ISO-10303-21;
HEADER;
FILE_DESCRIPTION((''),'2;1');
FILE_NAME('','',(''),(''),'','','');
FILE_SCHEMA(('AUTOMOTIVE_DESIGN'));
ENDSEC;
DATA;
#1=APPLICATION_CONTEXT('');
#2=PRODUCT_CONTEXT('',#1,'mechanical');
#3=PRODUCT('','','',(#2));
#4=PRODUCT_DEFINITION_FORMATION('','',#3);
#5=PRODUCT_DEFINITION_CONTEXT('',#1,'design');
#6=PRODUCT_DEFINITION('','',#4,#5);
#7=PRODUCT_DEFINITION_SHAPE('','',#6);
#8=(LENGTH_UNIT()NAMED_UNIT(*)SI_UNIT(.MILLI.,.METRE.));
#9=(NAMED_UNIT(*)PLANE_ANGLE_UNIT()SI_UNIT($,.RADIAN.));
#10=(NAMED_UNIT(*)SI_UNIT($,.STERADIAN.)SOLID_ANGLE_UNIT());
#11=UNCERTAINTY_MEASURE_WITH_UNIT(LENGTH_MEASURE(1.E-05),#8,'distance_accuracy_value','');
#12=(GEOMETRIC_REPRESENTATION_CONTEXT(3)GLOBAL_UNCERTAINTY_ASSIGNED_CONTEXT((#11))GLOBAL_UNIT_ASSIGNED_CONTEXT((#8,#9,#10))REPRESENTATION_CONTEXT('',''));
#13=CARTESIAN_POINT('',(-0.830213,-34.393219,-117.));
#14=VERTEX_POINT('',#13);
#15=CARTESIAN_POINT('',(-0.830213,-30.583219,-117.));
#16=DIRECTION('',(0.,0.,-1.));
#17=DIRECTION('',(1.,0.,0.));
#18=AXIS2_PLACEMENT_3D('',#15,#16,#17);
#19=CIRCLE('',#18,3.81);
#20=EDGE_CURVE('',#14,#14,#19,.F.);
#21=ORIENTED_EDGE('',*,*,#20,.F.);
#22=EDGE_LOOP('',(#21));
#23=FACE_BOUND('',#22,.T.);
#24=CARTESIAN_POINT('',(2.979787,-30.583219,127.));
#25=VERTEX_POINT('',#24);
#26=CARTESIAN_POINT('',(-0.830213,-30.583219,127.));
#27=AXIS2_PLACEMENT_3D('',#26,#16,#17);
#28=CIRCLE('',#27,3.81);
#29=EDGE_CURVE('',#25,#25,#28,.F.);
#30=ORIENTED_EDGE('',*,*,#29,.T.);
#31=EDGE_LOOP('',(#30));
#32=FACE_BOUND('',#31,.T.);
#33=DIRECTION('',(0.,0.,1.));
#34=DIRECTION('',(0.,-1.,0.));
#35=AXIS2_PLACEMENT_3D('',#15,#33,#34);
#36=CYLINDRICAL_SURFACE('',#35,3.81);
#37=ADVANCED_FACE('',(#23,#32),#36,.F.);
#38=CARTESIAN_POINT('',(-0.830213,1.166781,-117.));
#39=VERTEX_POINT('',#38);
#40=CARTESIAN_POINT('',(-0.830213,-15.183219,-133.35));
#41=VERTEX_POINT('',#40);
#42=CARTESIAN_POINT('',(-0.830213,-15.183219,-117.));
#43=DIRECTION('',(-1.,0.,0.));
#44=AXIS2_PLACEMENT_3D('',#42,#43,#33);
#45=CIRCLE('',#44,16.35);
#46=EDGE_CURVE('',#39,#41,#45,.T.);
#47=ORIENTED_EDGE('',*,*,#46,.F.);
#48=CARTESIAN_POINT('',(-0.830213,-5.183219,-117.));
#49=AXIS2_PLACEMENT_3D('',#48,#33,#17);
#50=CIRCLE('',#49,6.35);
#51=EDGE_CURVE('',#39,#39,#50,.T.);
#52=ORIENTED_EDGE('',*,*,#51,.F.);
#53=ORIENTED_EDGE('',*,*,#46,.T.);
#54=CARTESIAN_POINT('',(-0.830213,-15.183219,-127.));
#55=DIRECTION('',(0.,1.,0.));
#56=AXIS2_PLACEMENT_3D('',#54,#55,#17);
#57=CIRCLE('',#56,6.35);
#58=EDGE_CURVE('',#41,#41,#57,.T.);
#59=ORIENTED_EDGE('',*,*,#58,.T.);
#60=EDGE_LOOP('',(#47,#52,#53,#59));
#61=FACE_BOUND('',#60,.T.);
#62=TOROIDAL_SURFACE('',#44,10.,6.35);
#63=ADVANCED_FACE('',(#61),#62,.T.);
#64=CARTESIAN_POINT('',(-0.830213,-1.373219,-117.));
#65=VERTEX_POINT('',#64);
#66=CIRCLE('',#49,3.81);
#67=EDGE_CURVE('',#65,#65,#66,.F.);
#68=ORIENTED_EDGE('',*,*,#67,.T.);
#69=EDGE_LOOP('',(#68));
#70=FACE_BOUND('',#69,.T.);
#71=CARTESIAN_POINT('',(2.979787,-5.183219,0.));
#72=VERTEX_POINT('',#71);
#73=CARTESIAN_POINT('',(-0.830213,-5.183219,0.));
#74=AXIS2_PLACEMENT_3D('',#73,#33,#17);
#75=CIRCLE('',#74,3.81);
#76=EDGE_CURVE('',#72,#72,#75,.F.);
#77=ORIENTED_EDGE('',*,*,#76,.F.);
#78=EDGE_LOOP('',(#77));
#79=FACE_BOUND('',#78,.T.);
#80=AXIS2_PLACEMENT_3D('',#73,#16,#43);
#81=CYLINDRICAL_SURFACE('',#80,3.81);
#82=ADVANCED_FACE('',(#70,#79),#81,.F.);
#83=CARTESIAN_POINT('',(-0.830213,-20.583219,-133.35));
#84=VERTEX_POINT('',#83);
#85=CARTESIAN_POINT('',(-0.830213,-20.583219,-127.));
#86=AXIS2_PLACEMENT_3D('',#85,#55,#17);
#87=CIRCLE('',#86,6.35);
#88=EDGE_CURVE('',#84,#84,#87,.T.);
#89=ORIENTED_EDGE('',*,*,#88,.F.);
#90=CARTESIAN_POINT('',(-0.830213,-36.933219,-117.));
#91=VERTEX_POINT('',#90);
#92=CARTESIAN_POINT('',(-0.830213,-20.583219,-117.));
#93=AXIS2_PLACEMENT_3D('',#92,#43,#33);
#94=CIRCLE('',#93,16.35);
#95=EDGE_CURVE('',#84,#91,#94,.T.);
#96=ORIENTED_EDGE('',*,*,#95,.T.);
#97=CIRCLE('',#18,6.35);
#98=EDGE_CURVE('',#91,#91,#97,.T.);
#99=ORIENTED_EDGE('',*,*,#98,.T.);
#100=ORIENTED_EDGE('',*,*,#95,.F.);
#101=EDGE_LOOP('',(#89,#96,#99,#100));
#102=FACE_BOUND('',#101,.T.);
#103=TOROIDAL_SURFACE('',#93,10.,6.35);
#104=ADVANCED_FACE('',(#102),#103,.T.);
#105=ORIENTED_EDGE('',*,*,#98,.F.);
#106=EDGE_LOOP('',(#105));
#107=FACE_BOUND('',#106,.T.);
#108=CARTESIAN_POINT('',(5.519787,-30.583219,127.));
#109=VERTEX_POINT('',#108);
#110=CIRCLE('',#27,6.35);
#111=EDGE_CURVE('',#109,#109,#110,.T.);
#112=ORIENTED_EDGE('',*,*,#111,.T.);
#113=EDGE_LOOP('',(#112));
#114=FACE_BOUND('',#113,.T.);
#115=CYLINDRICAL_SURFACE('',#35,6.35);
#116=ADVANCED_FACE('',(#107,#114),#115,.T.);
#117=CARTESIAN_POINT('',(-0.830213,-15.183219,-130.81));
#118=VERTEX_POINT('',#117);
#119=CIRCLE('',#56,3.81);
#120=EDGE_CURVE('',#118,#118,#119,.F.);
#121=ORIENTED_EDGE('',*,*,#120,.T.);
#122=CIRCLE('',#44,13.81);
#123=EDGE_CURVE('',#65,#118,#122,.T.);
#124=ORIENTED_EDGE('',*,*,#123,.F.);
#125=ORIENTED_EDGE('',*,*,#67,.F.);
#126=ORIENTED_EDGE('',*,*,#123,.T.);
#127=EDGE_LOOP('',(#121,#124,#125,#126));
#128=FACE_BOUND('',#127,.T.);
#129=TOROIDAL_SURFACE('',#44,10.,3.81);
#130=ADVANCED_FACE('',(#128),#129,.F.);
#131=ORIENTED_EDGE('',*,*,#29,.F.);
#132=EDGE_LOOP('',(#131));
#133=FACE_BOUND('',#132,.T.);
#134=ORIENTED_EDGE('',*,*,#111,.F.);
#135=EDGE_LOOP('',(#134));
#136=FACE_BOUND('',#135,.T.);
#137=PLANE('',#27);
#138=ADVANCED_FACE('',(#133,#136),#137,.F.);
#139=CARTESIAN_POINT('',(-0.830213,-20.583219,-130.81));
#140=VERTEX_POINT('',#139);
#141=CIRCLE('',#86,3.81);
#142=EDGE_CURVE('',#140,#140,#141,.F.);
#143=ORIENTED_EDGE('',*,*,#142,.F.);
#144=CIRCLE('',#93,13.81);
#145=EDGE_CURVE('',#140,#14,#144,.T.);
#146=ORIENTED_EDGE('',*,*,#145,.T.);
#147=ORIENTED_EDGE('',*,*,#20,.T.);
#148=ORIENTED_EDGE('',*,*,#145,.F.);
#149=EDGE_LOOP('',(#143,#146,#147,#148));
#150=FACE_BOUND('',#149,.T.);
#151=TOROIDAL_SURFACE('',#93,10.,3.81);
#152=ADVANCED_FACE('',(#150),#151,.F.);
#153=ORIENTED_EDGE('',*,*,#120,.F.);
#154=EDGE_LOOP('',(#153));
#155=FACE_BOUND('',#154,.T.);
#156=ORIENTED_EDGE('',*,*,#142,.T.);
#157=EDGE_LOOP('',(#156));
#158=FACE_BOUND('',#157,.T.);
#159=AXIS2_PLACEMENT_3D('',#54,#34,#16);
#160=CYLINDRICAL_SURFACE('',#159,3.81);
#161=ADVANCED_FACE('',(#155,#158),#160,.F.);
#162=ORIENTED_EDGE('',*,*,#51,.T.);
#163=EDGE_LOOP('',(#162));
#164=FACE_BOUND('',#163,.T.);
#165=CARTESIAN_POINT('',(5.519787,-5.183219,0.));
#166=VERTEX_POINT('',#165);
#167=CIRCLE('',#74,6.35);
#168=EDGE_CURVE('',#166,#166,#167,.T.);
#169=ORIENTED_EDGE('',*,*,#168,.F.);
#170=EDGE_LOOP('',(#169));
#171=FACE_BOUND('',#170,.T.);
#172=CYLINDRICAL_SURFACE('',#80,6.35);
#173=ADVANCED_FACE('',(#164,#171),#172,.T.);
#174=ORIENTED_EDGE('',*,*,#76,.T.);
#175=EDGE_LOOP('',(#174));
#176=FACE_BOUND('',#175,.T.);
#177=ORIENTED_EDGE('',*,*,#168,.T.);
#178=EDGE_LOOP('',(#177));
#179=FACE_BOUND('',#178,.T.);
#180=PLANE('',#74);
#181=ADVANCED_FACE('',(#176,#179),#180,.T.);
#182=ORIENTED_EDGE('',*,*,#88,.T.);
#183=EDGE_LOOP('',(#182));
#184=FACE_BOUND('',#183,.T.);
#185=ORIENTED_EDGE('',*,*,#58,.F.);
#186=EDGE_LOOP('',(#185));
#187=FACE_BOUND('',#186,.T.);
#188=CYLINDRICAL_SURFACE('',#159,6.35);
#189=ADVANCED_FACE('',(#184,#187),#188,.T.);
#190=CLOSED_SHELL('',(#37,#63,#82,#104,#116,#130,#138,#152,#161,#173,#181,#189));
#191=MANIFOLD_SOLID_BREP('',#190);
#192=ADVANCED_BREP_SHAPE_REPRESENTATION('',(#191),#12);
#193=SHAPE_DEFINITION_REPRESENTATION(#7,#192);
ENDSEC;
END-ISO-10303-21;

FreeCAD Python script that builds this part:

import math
import FreeCAD as App
import Part
import Sketcher

V = App.Vector

doc = App.newDocument("Part")
body = doc.addObject("PartDesign::Body", "Body")

sketch1 = body.newObject("Sketcher::SketchObject", "Sketch")
sketch1.AttachmentSupport = (doc.getObject("XY_Plane"), [""])
sketch1.MapMode = "FlatFace"
sketch1.addGeometry(Part.Circle(V(-0.8, -5.2, 0), V(0, 0, 1), 6.3), False)
sketch1.addGeometry(Part.Circle(V(-0.8, -5.2, 0), V(0, 0, 1), 3.8), False)
sketch1.addConstraint(Sketcher.Constraint("Coincident", 1, 3, 0, 3))
sketch1.addConstraint(Sketcher.Constraint("Diameter", 0, 12.7))
sketch1.addConstraint(Sketcher.Constraint("Diameter", 1, 7.62))
sketch1.addConstraint(Sketcher.Constraint("DistanceY", 0, 3, -1, 1, 5.183219))
sketch1.addConstraint(Sketcher.Constraint("DistanceX", 0, 3, -1, 1, 0.830213))

sketch2 = body.newObject("Sketcher::SketchObject", "Sketch001")
sketch2.AttachmentSupport = (doc.getObject("YZ_Plane"), [""])
sketch2.MapMode = "FlatFace"
sketch2.addGeometry(Part.LineSegment(V(-5, 0, 0), V(-5, -117, 0)), False)
sketch2.addGeometry(Part.ArcOfCircle(Part.Circle(V(-15, -117, 0), V(0, 0, 1), 10), math.radians(-90), math.radians(0)), False)
sketch2.addGeometry(Part.LineSegment(V(-15, -127, 0), V(-21, -127, 0)), False)
sketch2.addGeometry(Part.ArcOfCircle(Part.Circle(V(-21, -117, 0), V(0, 0, 1), 10), math.radians(180), math.radians(270)), False)
sketch2.addGeometry(Part.LineSegment(V(-31, -117, 0), V(-31, 127, 0)), False)
sketch2.addConstraint(Sketcher.Constraint("Tangent", 0, 2, 1, 2))
sketch2.addConstraint(Sketcher.Constraint("Tangent", 1, 1, 2, 1))
sketch2.addConstraint(Sketcher.Constraint("Tangent", 2, 2, 3, 2))
sketch2.addConstraint(Sketcher.Constraint("Tangent", 3, 1, 4, 1))
sketch2.addConstraint(Sketcher.Constraint("Vertical", 0))
sketch2.addConstraint(Sketcher.Constraint("Horizontal", 2))
sketch2.addConstraint(Sketcher.Constraint("Vertical", 4))
sketch2.addConstraint(Sketcher.Constraint("Equal", 1, 3))
sketch2.addConstraint(Sketcher.Constraint("PointOnObject", 0, 1, -1))
sketch2.addConstraint(Sketcher.Constraint("Radius", 1, 10.0))
sketch2.addConstraint(Sketcher.Constraint("DistanceY", 0, 2, 0, 1, 117.0))
sketch2.addConstraint(Sketcher.Constraint("DistanceY", 4, 1, 4, 2, 244.0))
sketch2.addConstraint(Sketcher.Constraint("DistanceX", 2, 2, 2, 1, 5.4))
sketch2.addConstraint(Sketcher.Constraint("DistanceX", 1, 3, -1, 1, 15.183219))
doc.recompute()

additivepipe = body.newObject("PartDesign::AdditivePipe", "AdditivePipe")
additivepipe.Profile = sketch1
additivepipe.Spine = (sketch2, ["Edge1", "Edge2", "Edge3", "Edge4", "Edge5"])

doc.recompute()
